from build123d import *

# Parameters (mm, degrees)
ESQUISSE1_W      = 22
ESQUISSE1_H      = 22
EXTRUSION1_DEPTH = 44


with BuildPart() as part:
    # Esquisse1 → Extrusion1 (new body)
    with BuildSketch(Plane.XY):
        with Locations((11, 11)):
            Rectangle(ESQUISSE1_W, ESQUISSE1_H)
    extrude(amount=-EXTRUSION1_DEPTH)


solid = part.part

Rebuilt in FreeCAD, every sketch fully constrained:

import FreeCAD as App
import Part
import Sketcher
Q = App.Units.Quantity


def add_polygon(sketch, points):
    """Adds a closed chain of lines whose ends are joined by coincident constraints."""
    first, n = sketch.GeometryCount, len(points)
    for a, b in zip(points, points[1:] + points[:1]):
        sketch.addGeometry(Part.LineSegment(App.Vector(*a, 0), App.Vector(*b, 0)), False)
    for i in range(n):
        sketch.addConstraint(Sketcher.Constraint("Coincident", first + i, 2, first + (i + 1) % n, 1))

doc = App.newDocument("Part")
body = doc.addObject("PartDesign::Body", "Body")

sketch1 = doc.addObject("Sketcher::SketchObject", "Sketch")
body.addObject(sketch1)
sketch1.AttachmentSupport = (doc.XY_Plane, [""])
sketch1.MapMode = "FlatFace"
add_polygon(sketch1, [(0, 22), (0, 0), (22, 0), (22, 22)])
sketch1.addConstraint(Sketcher.Constraint("Vertical", 0))
sketch1.addConstraint(Sketcher.Constraint("Horizontal", 1))
sketch1.addConstraint(Sketcher.Constraint("Vertical", 2))
sketch1.addConstraint(Sketcher.Constraint("Horizontal", 3))
sketch1.addConstraint(Sketcher.Constraint("Coincident", 0, 2, -1, 1))
sketch1.addConstraint(Sketcher.Constraint("Equal", 3, 0))
sketch1.addConstraint(Sketcher.Constraint("DistanceX", 1, 1, 1, 2, Q("22 mm")))
pad1 = doc.addObject("PartDesign::Pad", "Pad")
body.addObject(pad1)
pad1.Profile = sketch1
pad1.Length = 44
pad1.Reversed = True

doc.recompute()
